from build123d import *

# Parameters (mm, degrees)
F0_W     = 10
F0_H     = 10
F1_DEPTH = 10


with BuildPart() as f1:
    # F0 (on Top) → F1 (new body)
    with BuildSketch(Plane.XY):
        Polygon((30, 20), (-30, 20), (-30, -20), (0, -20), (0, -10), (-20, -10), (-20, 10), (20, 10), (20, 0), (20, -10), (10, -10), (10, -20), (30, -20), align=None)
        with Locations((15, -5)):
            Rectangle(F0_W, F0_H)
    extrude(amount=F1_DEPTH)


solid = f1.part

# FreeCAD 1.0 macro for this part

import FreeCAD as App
import Part
import Sketcher

V = App.Vector
Q = App.Units.Quantity

doc = App.newDocument("Part")
body = doc.addObject("PartDesign::Body", "Body")

# Sketch on XY plane
sketch1 = body.newObject("Sketcher::SketchObject", "Sketch")
sketch1.AttachmentSupport = (doc.getObject("XY_Plane"), [""])
sketch1.MapMode = "FlatFace"
sketch1.addGeometry(Part.LineSegment(V(30, 20, 0), V(-30, 20, 0)), False)
sketch1.addGeometry(Part.LineSegment(V(-30, 20, 0), V(-30, -20, 0)), False)
sketch1.addGeometry(Part.LineSegment(V(-30, -20, 0), V(0, -20, 0)), False)
sketch1.addGeometry(Part.LineSegment(V(0, -20, 0), V(0, -10, 0)), False)
sketch1.addGeometry(Part.LineSegment(V(0, -10, 0), V(-20, -10, 0)), False)
sketch1.addGeometry(Part.LineSegment(V(-20, -10, 0), V(-20, 10, 0)), False)
sketch1.addGeometry(Part.LineSegment(V(-20, 10, 0), V(20, 10, 0)), False)
sketch1.addGeometry(Part.LineSegment(V(20, 10, 0), V(20, 0, 0)), False)
sketch1.addGeometry(Part.LineSegment(V(20, 0, 0), V(10, 0, 0)), False)
sketch1.addGeometry(Part.LineSegment(V(10, 0, 0), V(10, -20, 0)), False)
sketch1.addGeometry(Part.LineSegment(V(10, -20, 0), V(30, -20, 0)), False)
sketch1.addGeometry(Part.LineSegment(V(30, -20, 0), V(30, 20, 0)), False)
sketch1.addConstraint(Sketcher.Constraint("Coincident", 0, 2, 1, 1))
sketch1.addConstraint(Sketcher.Constraint("Coincident", 1, 2, 2, 1))
sketch1.addConstraint(Sketcher.Constraint("Coincident", 2, 2, 3, 1))
sketch1.addConstraint(Sketcher.Constraint("Coincident", 3, 2, 4, 1))
sketch1.addConstraint(Sketcher.Constraint("Coincident", 4, 2, 5, 1))
sketch1.addConstraint(Sketcher.Constraint("Coincident", 5, 2, 6, 1))
sketch1.addConstraint(Sketcher.Constraint("Coincident", 6, 2, 7, 1))
sketch1.addConstraint(Sketcher.Constraint("Coincident", 7, 2, 8, 1))
sketch1.addConstraint(Sketcher.Constraint("Coincident", 8, 2, 9, 1))
sketch1.addConstraint(Sketcher.Constraint("Coincident", 9, 2, 10, 1))
sketch1.addConstraint(Sketcher.Constraint("Coincident", 10, 2, 11, 1))
sketch1.addConstraint(Sketcher.Constraint("Coincident", 11, 2, 0, 1))
sketch1.addConstraint(Sketcher.Constraint("Horizontal", 0))
sketch1.addConstraint(Sketcher.Constraint("Vertical", 1))
sketch1.addConstraint(Sketcher.Constraint("Horizontal", 2))
sketch1.addConstraint(Sketcher.Constraint("Vertical", 3))
sketch1.addConstraint(Sketcher.Constraint("Horizontal", 4))
sketch1.addConstraint(Sketcher.Constraint("Vertical", 5))
sketch1.addConstraint(Sketcher.Constraint("Horizontal", 6))
sketch1.addConstraint(Sketcher.Constraint("Vertical", 7))
sketch1.addConstraint(Sketcher.Constraint("Horizontal", 8))
sketch1.addConstraint(Sketcher.Constraint("Vertical", 9))
sketch1.addConstraint(Sketcher.Constraint("Horizontal", 10))
sketch1.addConstraint(Sketcher.Constraint("Vertical", 11))
sketch1.addConstraint(Sketcher.Constraint("Symmetric", 4, 2, 6, 2, -1, 1))
sketch1.addConstraint(Sketcher.Constraint("Symmetric", 0, 2, 10, 2, -1, 1))
sketch1.addConstraint(Sketcher.Constraint("PointOnObject", 2, 2, -2))
sketch1.addConstraint(Sketcher.Constraint("PointOnObject", 7, 2, -1))
sketch1.addConstraint(Sketcher.Constraint("Horizontal", 2, 2, 9, 2))
sketch1.addConstraint(Sketcher.Constraint("Equal", 4, 10))
sketch1.addConstraint(Sketcher.Constraint("Equal", 6, 1))
sketch1.addConstraint(Sketcher.Constraint("Equal", 8, 3))
sketch1.addConstraint(Sketcher.Constraint("Equal", 10, 5))
sketch1.addConstraint(Sketcher.Constraint("DistanceX", 0, 2, 0, 1, Q("60 mm")))
pad1 = body.newObject("PartDesign::Pad", "Pad")
pad1.Profile = sketch1
pad1.Length = 10

doc.recompute()
